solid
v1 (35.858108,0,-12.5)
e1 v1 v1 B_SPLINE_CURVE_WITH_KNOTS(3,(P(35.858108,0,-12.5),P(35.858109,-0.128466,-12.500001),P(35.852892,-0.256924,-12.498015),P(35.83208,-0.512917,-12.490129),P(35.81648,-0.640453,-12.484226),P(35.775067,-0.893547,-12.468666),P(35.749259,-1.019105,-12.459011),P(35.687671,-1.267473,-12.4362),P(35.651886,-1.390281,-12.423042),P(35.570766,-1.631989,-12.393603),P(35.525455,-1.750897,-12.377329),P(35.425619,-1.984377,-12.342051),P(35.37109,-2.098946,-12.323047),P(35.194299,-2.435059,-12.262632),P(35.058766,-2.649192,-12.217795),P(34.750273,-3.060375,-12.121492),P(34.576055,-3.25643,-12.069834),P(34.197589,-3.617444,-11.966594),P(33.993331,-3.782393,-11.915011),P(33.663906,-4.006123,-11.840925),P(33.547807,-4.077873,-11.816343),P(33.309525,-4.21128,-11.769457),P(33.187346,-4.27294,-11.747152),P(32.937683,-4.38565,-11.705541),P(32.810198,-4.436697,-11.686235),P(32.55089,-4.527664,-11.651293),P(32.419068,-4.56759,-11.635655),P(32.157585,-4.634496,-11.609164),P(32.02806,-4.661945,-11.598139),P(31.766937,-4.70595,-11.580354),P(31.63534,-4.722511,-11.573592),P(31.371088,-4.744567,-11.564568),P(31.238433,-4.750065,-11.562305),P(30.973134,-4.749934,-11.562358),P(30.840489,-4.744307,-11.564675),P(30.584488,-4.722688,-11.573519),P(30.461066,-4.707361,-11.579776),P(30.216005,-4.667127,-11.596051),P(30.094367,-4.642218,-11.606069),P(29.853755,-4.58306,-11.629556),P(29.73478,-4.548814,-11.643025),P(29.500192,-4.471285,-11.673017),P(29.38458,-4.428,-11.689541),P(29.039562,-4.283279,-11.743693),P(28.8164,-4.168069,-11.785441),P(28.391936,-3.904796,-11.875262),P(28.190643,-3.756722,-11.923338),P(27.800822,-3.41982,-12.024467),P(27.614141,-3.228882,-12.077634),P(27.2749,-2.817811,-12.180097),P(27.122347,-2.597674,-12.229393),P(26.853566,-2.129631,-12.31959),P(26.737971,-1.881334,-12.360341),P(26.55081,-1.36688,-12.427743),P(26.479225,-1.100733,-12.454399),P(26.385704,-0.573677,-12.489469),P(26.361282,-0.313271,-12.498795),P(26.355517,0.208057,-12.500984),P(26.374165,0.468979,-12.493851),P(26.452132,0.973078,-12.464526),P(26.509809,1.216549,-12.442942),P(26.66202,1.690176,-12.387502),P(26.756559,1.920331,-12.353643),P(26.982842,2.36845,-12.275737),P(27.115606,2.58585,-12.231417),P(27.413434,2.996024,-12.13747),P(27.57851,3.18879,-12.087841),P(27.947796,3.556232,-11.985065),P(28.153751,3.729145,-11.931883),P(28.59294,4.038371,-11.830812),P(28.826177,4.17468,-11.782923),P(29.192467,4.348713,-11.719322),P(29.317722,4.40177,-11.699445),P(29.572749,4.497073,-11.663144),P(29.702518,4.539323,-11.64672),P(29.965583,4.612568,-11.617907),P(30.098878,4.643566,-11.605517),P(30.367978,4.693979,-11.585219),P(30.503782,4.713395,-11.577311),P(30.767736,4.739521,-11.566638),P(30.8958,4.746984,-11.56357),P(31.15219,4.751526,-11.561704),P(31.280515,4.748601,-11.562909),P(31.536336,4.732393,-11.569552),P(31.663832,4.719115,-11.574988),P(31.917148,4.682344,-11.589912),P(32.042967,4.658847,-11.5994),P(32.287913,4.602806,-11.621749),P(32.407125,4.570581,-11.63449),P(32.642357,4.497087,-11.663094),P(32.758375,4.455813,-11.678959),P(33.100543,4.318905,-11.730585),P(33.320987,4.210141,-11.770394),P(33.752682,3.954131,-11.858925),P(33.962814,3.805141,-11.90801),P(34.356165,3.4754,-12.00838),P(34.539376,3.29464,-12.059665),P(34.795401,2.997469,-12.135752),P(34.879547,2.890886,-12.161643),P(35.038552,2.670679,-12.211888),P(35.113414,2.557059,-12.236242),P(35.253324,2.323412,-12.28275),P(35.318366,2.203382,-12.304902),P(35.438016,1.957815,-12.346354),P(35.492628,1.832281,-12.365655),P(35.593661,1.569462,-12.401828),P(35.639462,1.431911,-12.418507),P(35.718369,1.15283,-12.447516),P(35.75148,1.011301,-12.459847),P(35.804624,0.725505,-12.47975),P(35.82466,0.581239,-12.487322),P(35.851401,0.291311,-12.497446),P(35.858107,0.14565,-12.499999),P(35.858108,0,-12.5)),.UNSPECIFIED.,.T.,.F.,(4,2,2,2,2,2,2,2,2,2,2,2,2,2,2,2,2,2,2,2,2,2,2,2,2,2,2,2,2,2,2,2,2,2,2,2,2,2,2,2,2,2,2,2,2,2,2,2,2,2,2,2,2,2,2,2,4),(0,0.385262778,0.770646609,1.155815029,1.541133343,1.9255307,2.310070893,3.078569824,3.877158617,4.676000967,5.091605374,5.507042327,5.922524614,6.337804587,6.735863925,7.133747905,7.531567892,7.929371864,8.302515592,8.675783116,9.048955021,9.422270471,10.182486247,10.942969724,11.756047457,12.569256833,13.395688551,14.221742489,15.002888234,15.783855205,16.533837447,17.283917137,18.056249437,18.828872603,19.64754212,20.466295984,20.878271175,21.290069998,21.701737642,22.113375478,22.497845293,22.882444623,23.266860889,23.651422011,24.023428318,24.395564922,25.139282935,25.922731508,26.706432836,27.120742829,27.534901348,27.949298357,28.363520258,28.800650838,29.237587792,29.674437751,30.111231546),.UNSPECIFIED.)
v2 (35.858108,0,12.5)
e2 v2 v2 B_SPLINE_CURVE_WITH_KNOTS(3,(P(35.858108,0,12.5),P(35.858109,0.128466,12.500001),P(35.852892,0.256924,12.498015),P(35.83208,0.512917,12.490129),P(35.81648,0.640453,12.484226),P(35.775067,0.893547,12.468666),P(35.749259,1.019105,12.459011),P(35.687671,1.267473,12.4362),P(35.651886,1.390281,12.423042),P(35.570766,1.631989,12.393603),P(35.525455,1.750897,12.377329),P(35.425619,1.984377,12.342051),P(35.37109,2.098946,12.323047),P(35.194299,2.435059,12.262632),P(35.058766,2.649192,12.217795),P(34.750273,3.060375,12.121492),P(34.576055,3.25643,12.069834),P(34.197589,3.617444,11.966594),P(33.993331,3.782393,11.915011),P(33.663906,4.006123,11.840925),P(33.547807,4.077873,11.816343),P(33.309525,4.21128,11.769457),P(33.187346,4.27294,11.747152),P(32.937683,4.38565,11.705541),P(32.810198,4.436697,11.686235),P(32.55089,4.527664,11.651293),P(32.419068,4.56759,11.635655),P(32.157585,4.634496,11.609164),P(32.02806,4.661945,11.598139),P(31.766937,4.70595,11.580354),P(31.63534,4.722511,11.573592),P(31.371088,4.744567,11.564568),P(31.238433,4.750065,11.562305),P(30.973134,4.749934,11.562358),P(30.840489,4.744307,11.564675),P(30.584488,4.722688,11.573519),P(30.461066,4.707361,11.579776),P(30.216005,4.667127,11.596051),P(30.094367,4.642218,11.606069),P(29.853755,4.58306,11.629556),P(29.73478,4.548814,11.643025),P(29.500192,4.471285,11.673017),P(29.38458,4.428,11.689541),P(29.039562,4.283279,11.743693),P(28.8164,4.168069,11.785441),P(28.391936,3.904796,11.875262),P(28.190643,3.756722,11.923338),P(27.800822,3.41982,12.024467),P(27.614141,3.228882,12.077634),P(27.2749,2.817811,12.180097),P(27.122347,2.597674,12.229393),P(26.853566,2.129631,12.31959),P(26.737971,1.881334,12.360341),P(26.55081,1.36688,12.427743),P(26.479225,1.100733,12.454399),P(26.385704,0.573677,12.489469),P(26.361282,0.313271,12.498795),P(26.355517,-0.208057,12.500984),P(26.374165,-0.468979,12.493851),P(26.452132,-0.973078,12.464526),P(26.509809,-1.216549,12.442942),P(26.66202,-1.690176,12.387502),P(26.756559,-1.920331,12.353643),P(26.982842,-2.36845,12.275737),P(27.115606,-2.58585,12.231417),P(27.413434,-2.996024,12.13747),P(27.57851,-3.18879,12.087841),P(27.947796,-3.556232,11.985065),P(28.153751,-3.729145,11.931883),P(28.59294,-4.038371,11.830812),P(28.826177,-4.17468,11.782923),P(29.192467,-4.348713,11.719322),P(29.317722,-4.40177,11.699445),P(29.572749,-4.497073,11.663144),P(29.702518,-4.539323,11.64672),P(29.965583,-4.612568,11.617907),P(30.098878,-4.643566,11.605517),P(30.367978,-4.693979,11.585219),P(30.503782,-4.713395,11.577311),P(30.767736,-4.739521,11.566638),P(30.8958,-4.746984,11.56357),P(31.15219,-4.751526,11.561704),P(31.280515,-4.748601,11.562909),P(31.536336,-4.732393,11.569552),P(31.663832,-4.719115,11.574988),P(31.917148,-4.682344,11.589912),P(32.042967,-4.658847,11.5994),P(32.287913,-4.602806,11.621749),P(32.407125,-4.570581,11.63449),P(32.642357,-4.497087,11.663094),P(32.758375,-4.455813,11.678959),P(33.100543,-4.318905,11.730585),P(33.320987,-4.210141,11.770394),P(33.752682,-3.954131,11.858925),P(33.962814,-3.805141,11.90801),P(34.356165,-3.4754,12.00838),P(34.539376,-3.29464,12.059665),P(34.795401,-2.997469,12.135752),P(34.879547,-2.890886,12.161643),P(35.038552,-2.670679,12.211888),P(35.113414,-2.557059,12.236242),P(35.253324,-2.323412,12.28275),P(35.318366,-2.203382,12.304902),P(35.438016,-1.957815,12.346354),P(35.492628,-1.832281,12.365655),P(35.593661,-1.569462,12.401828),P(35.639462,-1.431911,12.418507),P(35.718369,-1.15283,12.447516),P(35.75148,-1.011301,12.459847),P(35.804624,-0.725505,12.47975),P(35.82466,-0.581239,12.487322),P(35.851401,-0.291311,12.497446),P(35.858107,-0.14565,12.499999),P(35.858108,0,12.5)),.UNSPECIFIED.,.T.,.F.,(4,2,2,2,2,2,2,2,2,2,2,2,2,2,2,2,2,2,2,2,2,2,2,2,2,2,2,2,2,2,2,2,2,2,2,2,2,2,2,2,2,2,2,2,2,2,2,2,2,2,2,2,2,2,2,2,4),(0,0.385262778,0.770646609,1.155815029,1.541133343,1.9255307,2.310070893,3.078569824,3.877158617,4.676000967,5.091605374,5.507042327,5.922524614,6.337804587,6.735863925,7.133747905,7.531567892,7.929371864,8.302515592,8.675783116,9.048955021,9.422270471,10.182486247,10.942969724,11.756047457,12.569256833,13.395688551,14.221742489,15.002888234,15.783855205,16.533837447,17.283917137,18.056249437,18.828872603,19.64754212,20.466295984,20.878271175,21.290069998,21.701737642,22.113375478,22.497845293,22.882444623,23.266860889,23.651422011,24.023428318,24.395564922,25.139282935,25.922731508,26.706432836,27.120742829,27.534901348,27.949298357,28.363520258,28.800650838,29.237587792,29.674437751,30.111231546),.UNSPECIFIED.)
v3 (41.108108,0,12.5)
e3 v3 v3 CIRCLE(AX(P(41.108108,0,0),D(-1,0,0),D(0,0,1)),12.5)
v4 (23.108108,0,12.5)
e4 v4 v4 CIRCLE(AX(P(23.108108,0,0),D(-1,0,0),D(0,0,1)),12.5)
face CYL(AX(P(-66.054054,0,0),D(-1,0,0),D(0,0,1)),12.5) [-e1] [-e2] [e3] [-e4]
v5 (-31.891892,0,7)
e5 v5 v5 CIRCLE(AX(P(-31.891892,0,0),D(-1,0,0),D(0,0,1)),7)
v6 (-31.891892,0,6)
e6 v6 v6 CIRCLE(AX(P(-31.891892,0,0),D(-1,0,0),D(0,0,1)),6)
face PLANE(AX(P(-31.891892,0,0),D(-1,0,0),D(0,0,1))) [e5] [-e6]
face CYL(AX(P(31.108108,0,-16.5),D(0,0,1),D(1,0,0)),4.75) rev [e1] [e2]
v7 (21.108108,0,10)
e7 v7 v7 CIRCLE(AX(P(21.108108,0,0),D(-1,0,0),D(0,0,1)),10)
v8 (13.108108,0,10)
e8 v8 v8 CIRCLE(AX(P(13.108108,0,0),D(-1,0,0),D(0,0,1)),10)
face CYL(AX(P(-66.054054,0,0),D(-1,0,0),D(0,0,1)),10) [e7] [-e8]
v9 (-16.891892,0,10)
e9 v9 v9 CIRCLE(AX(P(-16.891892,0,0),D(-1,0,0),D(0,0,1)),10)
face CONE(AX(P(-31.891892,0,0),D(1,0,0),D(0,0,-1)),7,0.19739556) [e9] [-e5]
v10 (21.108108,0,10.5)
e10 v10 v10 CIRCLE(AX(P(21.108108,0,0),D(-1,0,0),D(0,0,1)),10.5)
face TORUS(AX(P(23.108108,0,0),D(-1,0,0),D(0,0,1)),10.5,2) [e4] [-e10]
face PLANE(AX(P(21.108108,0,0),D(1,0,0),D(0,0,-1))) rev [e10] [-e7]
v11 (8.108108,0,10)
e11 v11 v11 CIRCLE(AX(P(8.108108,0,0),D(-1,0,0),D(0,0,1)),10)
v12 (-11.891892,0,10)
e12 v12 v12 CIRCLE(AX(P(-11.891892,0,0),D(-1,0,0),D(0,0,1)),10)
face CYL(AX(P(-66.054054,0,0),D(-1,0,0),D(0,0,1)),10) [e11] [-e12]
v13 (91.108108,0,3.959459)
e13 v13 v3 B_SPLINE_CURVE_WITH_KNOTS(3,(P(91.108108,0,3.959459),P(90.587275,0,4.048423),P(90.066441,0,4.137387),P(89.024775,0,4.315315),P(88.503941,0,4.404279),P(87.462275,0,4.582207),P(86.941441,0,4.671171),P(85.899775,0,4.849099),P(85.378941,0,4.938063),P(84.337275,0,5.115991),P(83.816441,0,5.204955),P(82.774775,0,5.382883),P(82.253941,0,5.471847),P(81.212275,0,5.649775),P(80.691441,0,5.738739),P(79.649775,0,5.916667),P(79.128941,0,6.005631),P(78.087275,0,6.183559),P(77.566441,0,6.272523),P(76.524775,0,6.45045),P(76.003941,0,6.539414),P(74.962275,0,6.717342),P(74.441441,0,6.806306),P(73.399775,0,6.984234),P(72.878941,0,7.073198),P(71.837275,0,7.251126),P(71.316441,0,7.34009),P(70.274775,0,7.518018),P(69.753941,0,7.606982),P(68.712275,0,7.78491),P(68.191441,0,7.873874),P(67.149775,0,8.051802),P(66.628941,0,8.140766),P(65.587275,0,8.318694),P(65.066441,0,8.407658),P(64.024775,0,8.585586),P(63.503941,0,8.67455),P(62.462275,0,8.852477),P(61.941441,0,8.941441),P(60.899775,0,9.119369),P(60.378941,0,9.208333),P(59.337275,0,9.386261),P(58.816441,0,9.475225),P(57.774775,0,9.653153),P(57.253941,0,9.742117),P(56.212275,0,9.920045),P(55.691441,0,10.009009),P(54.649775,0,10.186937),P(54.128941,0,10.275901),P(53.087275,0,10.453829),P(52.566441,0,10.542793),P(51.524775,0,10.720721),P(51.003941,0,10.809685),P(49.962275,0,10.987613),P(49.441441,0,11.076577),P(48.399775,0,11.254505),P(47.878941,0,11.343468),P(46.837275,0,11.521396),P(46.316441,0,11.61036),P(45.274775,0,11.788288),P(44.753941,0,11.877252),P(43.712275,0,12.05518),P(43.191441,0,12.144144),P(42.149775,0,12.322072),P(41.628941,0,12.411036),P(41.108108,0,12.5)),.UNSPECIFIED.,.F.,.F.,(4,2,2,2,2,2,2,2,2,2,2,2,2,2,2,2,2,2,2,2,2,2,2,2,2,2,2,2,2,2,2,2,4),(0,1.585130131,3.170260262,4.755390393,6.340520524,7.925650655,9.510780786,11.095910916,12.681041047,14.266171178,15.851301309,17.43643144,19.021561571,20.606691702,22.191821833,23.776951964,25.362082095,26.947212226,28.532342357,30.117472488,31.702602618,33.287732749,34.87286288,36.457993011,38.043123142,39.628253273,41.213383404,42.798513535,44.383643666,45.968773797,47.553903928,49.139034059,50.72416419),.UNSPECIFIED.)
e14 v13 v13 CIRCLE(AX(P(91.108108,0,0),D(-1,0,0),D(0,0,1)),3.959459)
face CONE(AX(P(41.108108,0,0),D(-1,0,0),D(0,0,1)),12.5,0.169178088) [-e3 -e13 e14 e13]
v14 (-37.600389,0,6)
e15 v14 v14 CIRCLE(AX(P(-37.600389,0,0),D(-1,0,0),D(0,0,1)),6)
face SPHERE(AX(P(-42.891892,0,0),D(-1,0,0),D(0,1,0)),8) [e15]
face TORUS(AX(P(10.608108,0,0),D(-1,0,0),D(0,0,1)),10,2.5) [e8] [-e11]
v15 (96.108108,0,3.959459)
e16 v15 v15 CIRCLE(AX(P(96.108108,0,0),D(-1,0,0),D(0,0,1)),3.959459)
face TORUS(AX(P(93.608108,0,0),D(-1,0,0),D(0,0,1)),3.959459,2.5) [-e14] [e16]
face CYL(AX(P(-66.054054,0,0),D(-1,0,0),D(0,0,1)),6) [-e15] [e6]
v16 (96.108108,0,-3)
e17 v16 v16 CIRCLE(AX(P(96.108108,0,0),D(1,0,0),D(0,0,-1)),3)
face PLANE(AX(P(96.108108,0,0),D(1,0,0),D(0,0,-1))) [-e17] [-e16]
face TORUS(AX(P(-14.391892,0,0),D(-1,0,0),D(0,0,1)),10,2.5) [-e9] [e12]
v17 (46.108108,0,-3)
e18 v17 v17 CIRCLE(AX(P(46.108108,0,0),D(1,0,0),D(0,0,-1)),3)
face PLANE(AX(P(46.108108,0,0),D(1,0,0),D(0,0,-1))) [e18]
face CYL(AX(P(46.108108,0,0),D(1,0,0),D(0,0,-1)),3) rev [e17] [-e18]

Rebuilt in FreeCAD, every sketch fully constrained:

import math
import FreeCAD as App
import Part
import Sketcher
from FreeCAD import Vector

doc = App.newDocument("Part")
body = doc.addObject("PartDesign::Body", "Body")

sketch1 = doc.addObject("Sketcher::SketchObject", "Sketch")
body.addObject(sketch1)
sketch1.AttachmentSupport = (doc.XY_Plane, [""])
sketch1.MapMode = "FlatFace"
sketch1.addGeometry(Part.ArcOfCircle(Part.Circle(Vector(-42.9, 0, 0), Vector(0, 0, 1), 8), math.radians(49), math.radians(180)), False)
sketch1.addGeometry(Part.LineSegment(Vector(-50.9, 0, 0), Vector(96.1, 0, 0)), False)
sketch1.addGeometry(Part.LineSegment(Vector(96.1, 0, 0), Vector(96.1, 4, 0)), False)
sketch1.addGeometry(Part.ArcOfCircle(Part.Circle(Vector(93.6, 4, 0), Vector(0, 0, 1), 2.5), math.radians(0), math.radians(180)), False)
sketch1.addGeometry(Part.LineSegment(Vector(91.1, 4, 0), Vector(41.1, 12.5, 0)), False)
sketch1.addGeometry(Part.LineSegment(Vector(41.1, 12.5, 0), Vector(23.1, 12.5, 0)), False)
sketch1.addGeometry(Part.ArcOfCircle(Part.Circle(Vector(23.1, 10.5, 0), Vector(0, 0, 1), 2), math.radians(90), math.radians(180)), False)
sketch1.addGeometry(Part.LineSegment(Vector(21.1, 10.5, 0), Vector(21.1, 10, 0)), False)
sketch1.addGeometry(Part.LineSegment(Vector(21.1, 10, 0), Vector(13.1, 10, 0)), False)
sketch1.addGeometry(Part.ArcOfCircle(Part.Circle(Vector(10.6, 10, 0), Vector(0, 0, 1), 2.5), math.radians(0), math.radians(180)), False)
sketch1.addGeometry(Part.LineSegment(Vector(8.1, 10, 0), Vector(-11.9, 10, 0)), False)
sketch1.addGeometry(Part.ArcOfCircle(Part.Circle(Vector(-14.4, 10, 0), Vector(0, 0, 1), 2.5), math.radians(0), math.radians(180)), False)
sketch1.addGeometry(Part.LineSegment(Vector(-16.9, 10, 0), Vector(-31.9, 7, 0)), False)
sketch1.addGeometry(Part.LineSegment(Vector(-31.9, 7, 0), Vector(-31.9, 6, 0)), False)
sketch1.addGeometry(Part.LineSegment(Vector(-31.9, 6, 0), Vector(-37.6, 6, 0)), False)
sketch1.addConstraint(Sketcher.Constraint("Coincident", 0, 2, 1, 1))
sketch1.addConstraint(Sketcher.Constraint("Coincident", 1, 2, 2, 1))
sketch1.addConstraint(Sketcher.Constraint("Tangent", 2, 2, 3, 1))
sketch1.addConstraint(Sketcher.Constraint("Coincident", 3, 2, 4, 1))
sketch1.addConstraint(Sketcher.Constraint("Coincident", 4, 2, 5, 1))
sketch1.addConstraint(Sketcher.Constraint("Tangent", 5, 2, 6, 1))
sketch1.addConstraint(Sketcher.Constraint("Tangent", 6, 2, 7, 1))
sketch1.addConstraint(Sketcher.Constraint("Coincident", 7, 2, 8, 1))
sketch1.addConstraint(Sketcher.Constraint("Coincident", 8, 2, 9, 1))
sketch1.addConstraint(Sketcher.Constraint("Coincident", 9, 2, 10, 1))
sketch1.addConstraint(Sketcher.Constraint("Coincident", 10, 2, 11, 1))
sketch1.addConstraint(Sketcher.Constraint("Coincident", 11, 2, 12, 1))
sketch1.addConstraint(Sketcher.Constraint("Coincident", 12, 2, 13, 1))
sketch1.addConstraint(Sketcher.Constraint("Coincident", 13, 2, 14, 1))
sketch1.addConstraint(Sketcher.Constraint("Coincident", 14, 2, 0, 1))
sketch1.addConstraint(Sketcher.Constraint("Horizontal", 1))
sketch1.addConstraint(Sketcher.Constraint("Vertical", 2))
sketch1.addConstraint(Sketcher.Constraint("Horizontal", 5))
sketch1.addConstraint(Sketcher.Constraint("Vertical", 7))
sketch1.addConstraint(Sketcher.Constraint("Horizontal", 8))
sketch1.addConstraint(Sketcher.Constraint("Horizontal", 10))
sketch1.addConstraint(Sketcher.Constraint("Vertical", 13))
sketch1.addConstraint(Sketcher.Constraint("Horizontal", 14))
sketch1.addConstraint(Sketcher.Constraint("Equal", 3, 9))
sketch1.addConstraint(Sketcher.Constraint("Equal", 9, 11))
sketch1.addConstraint(Sketcher.Constraint("PointOnObject", 0, 3, -1))
sketch1.addConstraint(Sketcher.Constraint("PointOnObject", 0, 2, -1))
sketch1.addConstraint(Sketcher.Constraint("Horizontal", 9, 3, 11, 3))
sketch1.addConstraint(Sketcher.Constraint("Horizontal", 2, 2, 3, 2))
sketch1.addConstraint(Sketcher.Constraint("Horizontal", 11, 3, 7, 2))
sketch1.addConstraint(Sketcher.Constraint("Horizontal", 8, 2, 9, 2))
sketch1.addConstraint(Sketcher.Constraint("Horizontal", 10, 2, 11, 2))
sketch1.addConstraint(Sketcher.Constraint("Radius", 0, 8.0))
sketch1.addConstraint(Sketcher.Constraint("Radius", 6, 2.0))
sketch1.addConstraint(Sketcher.Constraint("Radius", 3, 2.5))
sketch1.addConstraint(Sketcher.Constraint("DistanceX", 1, 1, 1, 2, 147.0))
sketch1.addConstraint(Sketcher.Constraint("DistanceX", 5, 2, 5, 1, 18.0))
sketch1.addConstraint(Sketcher.Constraint("DistanceX", 8, 2, 8, 1, 8.0))
sketch1.addConstraint(Sketcher.Constraint("DistanceX", 10, 2, 10, 1, 20.0))
sketch1.addConstraint(Sketcher.Constraint("DistanceY", 13, 2, 13, 1, 1.0))
sketch1.addConstraint(Sketcher.Constraint("DistanceY", 7, 2, 7, 1, 0.5))
sketch1.addConstraint(Sketcher.Constraint("DistanceY", -1, 1, 9, 3, 10.0))
sketch1.addConstraint(Sketcher.Constraint("DistanceY", -1, 1, 12, 2, 7.0))
sketch1.addConstraint(Sketcher.Constraint("DistanceX", 0, 3, 6, 3, 66.0))
sketch1.addConstraint(Sketcher.Constraint("DistanceX", 0, 3, 12, 2, 11.0))
sketch1.addConstraint(Sketcher.Constraint("DistanceY", 2, 1, 2, 2, 3.959459))
sketch1.addConstraint(Sketcher.Constraint("DistanceX", 0, 3, -1, 1, 42.891892))
revolution = doc.addObject("PartDesign::Revolution", "Revolution")
body.addObject(revolution)
revolution.Profile = sketch1
revolution.ReferenceAxis = (sketch1, ["H_Axis"])
revolution.Angle = 360

sketch2 = doc.addObject("Sketcher::SketchObject", "Sketch001")
body.addObject(sketch2)
sketch2.AttachmentSupport = (doc.XY_Plane, [""])
sketch2.MapMode = "FlatFace"
sketch2.AttachmentOffset = App.Placement(Vector(0, 0, 12.5), App.Rotation())
sketch2.addGeometry(Part.Circle(Vector(31.1, 0, 0), Vector(0, 0, 1), 4.8), False)
sketch2.addConstraint(Sketcher.Constraint("PointOnObject", 0, 3, -1))
sketch2.addConstraint(Sketcher.Constraint("Diameter", 0, 9.5))
sketch2.addConstraint(Sketcher.Constraint("DistanceX", -1, 1, 0, 3, 31.108108))
pocket1 = doc.addObject("PartDesign::Pocket", "Pocket")
body.addObject(pocket1)
pocket1.Profile = sketch2
pocket1.Length = 29

sketch3 = doc.addObject("Sketcher::SketchObject", "Sketch002")
body.addObject(sketch3)
sketch3.AttachmentSupport = (doc.YZ_Plane, [""])
sketch3.MapMode = "FlatFace"
sketch3.AttachmentOffset = App.Placement(Vector(0, 0, 96.108108), App.Rotation())
sketch3.addGeometry(Part.Circle(Vector(0, 0, 0), Vector(0, 0, 1), 3), False)
sketch3.addConstraint(Sketcher.Constraint("Coincident", 0, 3, -1, 1))
sketch3.addConstraint(Sketcher.Constraint("Diameter", 0, 6.0))
pocket2 = doc.addObject("PartDesign::Pocket", "Pocket001")
body.addObject(pocket2)
pocket2.Profile = sketch3
pocket2.Length = 50

doc.recompute()
